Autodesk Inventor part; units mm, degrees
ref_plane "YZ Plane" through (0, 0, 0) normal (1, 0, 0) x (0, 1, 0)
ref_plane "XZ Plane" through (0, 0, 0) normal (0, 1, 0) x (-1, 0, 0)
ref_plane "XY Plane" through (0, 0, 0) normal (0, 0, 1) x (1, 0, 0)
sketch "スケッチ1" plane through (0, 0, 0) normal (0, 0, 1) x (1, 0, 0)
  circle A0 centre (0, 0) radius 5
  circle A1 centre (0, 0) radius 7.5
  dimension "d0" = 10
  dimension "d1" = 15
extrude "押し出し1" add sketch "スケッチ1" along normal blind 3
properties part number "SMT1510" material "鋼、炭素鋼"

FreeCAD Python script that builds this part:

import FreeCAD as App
import Part
import Sketcher
from FreeCAD import Vector
Q = App.Units.Quantity

doc = App.newDocument("Part")
params = doc.addObject("Spreadsheet::Sheet", "Params")
for row, (alias, value) in enumerate([
    ("sketch1_diameter", "15 mm"),
    ("sketch1_diameter2", "10 mm"),
    ("pad1_length", "3 mm"),
], start=1):
    params.set(f"A{row}", alias)
    params.set(f"B{row}", "=" + value)
    params.setAlias(f"B{row}", alias)

body = doc.addObject("PartDesign::Body", "Body")

sketch1 = body.newObject("Sketcher::SketchObject", "Sketch")
sketch1.AttachmentSupport = (doc.getObject("XY_Plane"), [""])
sketch1.MapMode = "FlatFace"
sketch1.addGeometry(Part.Circle(Vector(0, 0, 0), Vector(0, 0, 1), 8), False)
sketch1.addGeometry(Part.Circle(Vector(0, 0, 0), Vector(0, 0, 1), 5), False)
sketch1.addConstraint(Sketcher.Constraint("Coincident", 0, 3, -1, 1))
sketch1.addConstraint(Sketcher.Constraint("Coincident", 1, 3, -1, 1))
sketch1.addConstraint(Sketcher.Constraint("Diameter", 0, Q("15 mm")))
sketch1.addConstraint(Sketcher.Constraint("Diameter", 1, Q("10 mm")))
sketch1.setExpression("Constraints[2]", "Params.sketch1_diameter")
sketch1.setExpression("Constraints[3]", "Params.sketch1_diameter2")
pad1 = body.newObject("PartDesign::Pad", "Pad")
pad1.Profile = sketch1
pad1.setExpression("Length", "Params.pad1_length")

doc.recompute()
